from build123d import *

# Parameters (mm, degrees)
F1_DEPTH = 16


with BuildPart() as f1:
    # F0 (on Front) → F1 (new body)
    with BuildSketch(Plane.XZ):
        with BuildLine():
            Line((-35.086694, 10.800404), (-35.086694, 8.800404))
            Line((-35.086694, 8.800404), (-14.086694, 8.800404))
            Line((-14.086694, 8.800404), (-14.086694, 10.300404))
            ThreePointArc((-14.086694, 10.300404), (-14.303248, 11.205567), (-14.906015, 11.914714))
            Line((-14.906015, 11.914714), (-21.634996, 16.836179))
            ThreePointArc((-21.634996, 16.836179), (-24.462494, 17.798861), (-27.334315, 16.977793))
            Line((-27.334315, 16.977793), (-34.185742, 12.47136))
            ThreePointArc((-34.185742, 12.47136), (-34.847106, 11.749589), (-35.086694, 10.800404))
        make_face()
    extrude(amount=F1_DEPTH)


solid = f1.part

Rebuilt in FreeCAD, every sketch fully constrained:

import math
import FreeCAD as App
import Part
import Sketcher
Q = App.Units.Quantity

doc = App.newDocument("Part")
body = doc.addObject("PartDesign::Body", "Body")

sketch1 = doc.addObject("Sketcher::SketchObject", "Sketch")
body.addObject(sketch1)
sketch1.AttachmentSupport = (doc.XZ_Plane, [""])
sketch1.MapMode = "FlatFace"
sketch1.addGeometry(Part.LineSegment(App.Vector(-35.1, 10.8, 0), App.Vector(-35.1, 8.8, 0)), False)
sketch1.addGeometry(Part.LineSegment(App.Vector(-35.1, 8.8, 0), App.Vector(-14.1, 8.8, 0)), False)
sketch1.addGeometry(Part.LineSegment(App.Vector(-14.1, 8.8, 0), App.Vector(-14.1, 10.3, 0)), False)
sketch1.addGeometry(Part.ArcOfCircle(Part.Circle(App.Vector(-16.1, 10.3, 0), App.Vector(0, 0, 1), 2), math.radians(0), math.radians(54)), False)
sketch1.addGeometry(Part.LineSegment(App.Vector(-14.9, 11.9, 0), App.Vector(-21.6, 16.8, 0)), False)
sketch1.addGeometry(Part.ArcOfCircle(Part.Circle(App.Vector(-24.6, 12.8, 0), App.Vector(0, 0, 1), 5), math.radians(54), math.radians(123)), False)
sketch1.addGeometry(Part.LineSegment(App.Vector(-27.3, 17, 0), App.Vector(-34.2, 12.5, 0)), False)
sketch1.addGeometry(Part.ArcOfCircle(Part.Circle(App.Vector(-33.1, 10.8, 0), App.Vector(0, 0, 1), 2), math.radians(123), math.radians(180)), False)
sketch1.addConstraint(Sketcher.Constraint("Coincident", 0, 2, 1, 1))
sketch1.addConstraint(Sketcher.Constraint("Coincident", 1, 2, 2, 1))
sketch1.addConstraint(Sketcher.Constraint("Tangent", 2, 2, 3, 1))
sketch1.addConstraint(Sketcher.Constraint("Tangent", 3, 2, 4, 1))
sketch1.addConstraint(Sketcher.Constraint("Tangent", 4, 2, 5, 1))
sketch1.addConstraint(Sketcher.Constraint("Tangent", 5, 2, 6, 1))
sketch1.addConstraint(Sketcher.Constraint("Tangent", 6, 2, 7, 1))
sketch1.addConstraint(Sketcher.Constraint("Tangent", 7, 2, 0, 1))
sketch1.addConstraint(Sketcher.Constraint("Vertical", 0))
sketch1.addConstraint(Sketcher.Constraint("Horizontal", 1))
sketch1.addConstraint(Sketcher.Constraint("Vertical", 2))
sketch1.addConstraint(Sketcher.Constraint("Radius", 3, Q("2 mm")))
sketch1.addConstraint(Sketcher.Constraint("Radius", 5, Q("5.000001 mm")))
sketch1.addConstraint(Sketcher.Constraint("DistanceX", 1, 1, 1, 2, Q("21 mm")))
sketch1.addConstraint(Sketcher.Constraint("DistanceY", 0, 2, 0, 1, Q("2 mm")))
sketch1.addConstraint(Sketcher.Constraint("DistanceY", 2, 1, 2, 2, Q("1.5 mm")))
sketch1.addConstraint(Sketcher.Constraint("DistanceY", 0, 2, 5, 3, Q("3.999999 mm")))
sketch1.addConstraint(Sketcher.Constraint("DistanceX", 5, 3, 3, 3, Q("8.5 mm")))
sketch1.addConstraint(Sketcher.Constraint("Radius", 7, Q("1.999996 mm")))
sketch1.addConstraint(Sketcher.Constraint("DistanceX", 7, 3, -1, 1, Q("33.086698 mm")))
sketch1.addConstraint(Sketcher.Constraint("DistanceY", -1, 1, 4, 2, Q("16.836179 mm")))
pad1 = doc.addObject("PartDesign::Pad", "Pad")
body.addObject(pad1)
pad1.Profile = sketch1
pad1.Length = 16

doc.recompute()
